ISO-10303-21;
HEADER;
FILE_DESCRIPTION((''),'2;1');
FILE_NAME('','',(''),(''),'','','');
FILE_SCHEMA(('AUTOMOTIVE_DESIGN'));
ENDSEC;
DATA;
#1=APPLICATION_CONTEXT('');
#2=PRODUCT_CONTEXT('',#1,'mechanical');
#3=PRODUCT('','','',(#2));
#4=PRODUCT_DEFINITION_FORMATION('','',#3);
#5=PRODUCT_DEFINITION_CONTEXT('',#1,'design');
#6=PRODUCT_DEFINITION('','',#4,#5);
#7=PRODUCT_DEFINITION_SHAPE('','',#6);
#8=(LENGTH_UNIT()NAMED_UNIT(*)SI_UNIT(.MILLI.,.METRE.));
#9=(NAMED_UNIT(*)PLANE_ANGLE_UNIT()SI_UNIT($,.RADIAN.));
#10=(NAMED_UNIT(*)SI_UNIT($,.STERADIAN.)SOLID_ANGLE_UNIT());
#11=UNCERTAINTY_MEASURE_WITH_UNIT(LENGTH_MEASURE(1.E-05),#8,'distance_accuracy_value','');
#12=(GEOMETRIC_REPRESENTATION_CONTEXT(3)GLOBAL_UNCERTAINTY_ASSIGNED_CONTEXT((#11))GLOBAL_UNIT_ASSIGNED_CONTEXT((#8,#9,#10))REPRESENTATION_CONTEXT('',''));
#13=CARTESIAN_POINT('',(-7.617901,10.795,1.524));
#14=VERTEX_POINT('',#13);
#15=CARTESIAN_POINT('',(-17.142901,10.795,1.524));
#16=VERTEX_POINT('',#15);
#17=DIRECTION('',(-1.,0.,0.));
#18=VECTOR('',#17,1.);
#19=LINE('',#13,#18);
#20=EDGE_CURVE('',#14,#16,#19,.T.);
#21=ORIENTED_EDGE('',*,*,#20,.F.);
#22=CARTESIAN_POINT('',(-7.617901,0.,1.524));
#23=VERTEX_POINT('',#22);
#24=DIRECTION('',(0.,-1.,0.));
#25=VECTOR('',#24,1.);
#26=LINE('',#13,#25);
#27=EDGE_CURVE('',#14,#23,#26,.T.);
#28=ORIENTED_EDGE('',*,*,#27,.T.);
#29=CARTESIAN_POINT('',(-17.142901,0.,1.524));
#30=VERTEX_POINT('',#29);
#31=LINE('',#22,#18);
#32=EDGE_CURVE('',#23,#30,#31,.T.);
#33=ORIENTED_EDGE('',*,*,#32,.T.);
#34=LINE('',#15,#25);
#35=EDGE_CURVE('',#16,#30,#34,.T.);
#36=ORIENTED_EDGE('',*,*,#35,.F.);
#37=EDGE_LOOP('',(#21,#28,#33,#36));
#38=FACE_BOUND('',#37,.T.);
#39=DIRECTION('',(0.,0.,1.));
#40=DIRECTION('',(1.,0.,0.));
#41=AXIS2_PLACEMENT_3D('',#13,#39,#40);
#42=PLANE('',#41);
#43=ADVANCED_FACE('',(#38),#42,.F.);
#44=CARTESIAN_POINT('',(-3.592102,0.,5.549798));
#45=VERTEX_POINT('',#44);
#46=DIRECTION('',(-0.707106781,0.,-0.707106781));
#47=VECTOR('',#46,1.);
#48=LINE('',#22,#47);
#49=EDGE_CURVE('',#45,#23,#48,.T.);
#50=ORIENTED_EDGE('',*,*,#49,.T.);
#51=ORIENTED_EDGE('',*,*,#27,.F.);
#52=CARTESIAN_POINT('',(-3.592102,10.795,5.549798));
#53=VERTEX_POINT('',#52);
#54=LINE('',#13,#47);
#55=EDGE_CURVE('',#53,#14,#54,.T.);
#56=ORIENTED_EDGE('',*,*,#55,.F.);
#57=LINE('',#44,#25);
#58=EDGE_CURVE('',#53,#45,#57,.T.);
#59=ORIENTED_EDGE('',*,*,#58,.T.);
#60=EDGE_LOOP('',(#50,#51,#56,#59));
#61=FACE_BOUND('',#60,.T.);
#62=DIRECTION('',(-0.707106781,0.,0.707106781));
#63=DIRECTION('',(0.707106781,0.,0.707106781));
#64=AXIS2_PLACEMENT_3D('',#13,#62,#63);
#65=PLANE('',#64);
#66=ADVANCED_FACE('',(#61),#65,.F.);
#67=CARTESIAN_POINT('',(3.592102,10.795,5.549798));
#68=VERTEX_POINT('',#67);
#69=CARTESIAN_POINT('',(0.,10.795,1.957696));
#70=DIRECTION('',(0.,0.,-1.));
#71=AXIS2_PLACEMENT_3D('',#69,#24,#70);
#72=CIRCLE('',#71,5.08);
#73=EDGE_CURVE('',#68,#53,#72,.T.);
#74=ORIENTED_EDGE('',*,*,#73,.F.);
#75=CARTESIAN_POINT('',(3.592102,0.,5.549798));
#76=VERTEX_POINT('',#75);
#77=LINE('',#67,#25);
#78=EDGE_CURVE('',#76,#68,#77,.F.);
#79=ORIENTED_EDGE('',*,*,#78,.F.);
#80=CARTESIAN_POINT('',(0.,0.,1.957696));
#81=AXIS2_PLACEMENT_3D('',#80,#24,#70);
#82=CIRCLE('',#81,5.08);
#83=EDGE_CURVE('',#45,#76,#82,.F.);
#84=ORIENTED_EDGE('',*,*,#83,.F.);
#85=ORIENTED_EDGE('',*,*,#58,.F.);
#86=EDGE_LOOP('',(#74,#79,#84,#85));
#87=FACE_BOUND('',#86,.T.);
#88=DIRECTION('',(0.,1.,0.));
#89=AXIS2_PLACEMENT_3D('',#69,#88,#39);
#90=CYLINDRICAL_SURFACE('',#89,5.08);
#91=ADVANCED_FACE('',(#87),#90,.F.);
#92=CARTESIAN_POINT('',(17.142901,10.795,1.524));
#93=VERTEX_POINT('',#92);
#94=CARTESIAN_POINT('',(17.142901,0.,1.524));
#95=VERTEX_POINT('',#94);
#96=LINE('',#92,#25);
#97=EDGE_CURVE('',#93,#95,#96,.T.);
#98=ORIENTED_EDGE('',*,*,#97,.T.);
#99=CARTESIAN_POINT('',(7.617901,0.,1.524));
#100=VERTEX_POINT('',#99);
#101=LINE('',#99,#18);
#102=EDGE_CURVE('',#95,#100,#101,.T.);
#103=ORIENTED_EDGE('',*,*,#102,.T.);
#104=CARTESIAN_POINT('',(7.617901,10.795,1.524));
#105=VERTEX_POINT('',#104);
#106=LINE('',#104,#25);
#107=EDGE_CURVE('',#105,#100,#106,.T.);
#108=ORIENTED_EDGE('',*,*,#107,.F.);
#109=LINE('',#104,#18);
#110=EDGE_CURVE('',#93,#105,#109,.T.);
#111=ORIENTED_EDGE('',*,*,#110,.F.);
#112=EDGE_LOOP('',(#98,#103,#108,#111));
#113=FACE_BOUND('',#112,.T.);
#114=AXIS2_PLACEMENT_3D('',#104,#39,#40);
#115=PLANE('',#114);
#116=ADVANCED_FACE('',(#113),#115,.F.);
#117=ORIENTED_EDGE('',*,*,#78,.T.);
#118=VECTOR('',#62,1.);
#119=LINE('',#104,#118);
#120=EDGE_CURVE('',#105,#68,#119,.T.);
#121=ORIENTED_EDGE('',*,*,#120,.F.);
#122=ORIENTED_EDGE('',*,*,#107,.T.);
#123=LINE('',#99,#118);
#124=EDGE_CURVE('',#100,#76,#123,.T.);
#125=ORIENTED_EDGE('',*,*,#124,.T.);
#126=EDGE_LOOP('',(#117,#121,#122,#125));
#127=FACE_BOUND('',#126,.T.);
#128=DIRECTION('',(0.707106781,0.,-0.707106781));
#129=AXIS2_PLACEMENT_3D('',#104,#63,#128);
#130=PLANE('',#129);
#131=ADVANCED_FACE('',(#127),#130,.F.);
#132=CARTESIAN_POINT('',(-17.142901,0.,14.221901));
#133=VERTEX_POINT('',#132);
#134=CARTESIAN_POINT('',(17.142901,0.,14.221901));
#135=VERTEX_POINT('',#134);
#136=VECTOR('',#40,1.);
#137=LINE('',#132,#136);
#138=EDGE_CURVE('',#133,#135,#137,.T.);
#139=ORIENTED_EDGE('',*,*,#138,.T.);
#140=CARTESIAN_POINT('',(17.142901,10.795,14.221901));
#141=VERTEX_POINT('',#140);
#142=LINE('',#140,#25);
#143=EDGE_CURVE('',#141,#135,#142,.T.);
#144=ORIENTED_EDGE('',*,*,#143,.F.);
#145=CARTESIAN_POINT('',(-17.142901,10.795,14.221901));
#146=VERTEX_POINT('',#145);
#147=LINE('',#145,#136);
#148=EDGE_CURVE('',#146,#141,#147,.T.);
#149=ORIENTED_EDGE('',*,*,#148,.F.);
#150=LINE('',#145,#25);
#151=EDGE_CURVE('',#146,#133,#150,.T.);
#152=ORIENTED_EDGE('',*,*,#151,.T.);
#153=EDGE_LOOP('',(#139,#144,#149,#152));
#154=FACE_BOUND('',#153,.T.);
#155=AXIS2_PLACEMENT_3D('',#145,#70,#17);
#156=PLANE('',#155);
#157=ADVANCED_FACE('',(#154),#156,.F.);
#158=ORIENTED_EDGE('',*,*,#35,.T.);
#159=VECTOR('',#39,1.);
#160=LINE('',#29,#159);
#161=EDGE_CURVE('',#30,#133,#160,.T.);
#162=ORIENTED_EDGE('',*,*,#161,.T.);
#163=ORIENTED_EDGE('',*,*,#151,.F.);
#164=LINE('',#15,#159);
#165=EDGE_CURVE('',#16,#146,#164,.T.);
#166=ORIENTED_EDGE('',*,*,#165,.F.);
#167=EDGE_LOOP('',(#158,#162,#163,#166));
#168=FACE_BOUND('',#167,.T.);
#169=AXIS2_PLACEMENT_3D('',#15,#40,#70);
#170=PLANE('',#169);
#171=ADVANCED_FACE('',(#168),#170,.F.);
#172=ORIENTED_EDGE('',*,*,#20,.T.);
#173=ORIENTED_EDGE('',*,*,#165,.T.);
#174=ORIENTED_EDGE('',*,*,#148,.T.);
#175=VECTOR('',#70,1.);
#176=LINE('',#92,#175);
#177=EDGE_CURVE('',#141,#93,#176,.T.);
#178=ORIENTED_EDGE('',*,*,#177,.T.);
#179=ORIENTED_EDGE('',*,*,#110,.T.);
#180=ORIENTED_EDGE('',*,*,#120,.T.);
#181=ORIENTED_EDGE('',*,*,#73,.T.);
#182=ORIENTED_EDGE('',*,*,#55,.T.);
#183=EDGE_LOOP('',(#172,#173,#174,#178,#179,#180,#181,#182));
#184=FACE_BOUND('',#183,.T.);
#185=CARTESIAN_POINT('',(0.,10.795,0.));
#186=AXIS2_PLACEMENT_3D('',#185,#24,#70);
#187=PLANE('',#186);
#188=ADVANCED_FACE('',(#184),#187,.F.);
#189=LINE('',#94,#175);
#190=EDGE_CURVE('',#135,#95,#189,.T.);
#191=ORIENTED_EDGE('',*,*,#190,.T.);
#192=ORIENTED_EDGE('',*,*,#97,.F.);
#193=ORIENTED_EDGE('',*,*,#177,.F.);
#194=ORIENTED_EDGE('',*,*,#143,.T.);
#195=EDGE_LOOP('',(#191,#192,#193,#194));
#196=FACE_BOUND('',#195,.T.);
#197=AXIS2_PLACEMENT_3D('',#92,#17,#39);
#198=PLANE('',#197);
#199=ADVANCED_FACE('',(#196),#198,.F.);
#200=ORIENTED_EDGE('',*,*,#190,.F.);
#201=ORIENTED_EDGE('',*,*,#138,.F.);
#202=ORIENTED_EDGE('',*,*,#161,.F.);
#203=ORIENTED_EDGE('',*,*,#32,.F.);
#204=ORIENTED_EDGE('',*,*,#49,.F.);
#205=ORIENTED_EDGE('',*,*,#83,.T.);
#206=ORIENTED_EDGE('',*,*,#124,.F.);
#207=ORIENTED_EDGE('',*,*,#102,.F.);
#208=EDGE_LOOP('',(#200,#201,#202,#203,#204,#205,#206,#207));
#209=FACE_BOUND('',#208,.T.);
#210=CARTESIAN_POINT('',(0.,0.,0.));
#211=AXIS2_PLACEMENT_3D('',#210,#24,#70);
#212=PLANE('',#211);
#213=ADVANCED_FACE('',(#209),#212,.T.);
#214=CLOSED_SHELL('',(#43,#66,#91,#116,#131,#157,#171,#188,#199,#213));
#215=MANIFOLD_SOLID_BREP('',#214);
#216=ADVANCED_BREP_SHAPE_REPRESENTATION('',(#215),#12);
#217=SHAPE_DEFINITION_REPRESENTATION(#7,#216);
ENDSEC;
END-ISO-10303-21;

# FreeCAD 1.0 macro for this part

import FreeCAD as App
import Part
import Sketcher

V = App.Vector
Q = App.Units.Quantity


def edges_at(feature, points):
    """Names of the edges that pass closest to the given points."""
    edges = feature.Shape.Edges
    near = lambda p: min(range(len(edges)), key=lambda i: edges[i].distToShape(Part.Vertex(*p))[0])
    return sorted({f"Edge{near(p) + 1}" for p in points})

doc = App.newDocument("Part")
body = doc.addObject("PartDesign::Body", "Body")

# Sketch on XZ plane
sketch1 = body.newObject("Sketcher::SketchObject", "Sketch")
sketch1.AttachmentSupport = (doc.getObject("XZ_Plane"), [""])
sketch1.MapMode = "FlatFace"
sketch1.addGeometry(Part.LineSegment(V(7.617901, 1.524, 0), V(0, 9.141901, 0)), False)
sketch1.addGeometry(Part.LineSegment(V(0, 9.141901, 0), V(-7.617901, 1.524, 0)), False)
sketch1.addGeometry(Part.LineSegment(V(-7.617901, 1.524, 0), V(-17.142901, 1.524, 0)), False)
sketch1.addGeometry(Part.LineSegment(V(-17.142901, 1.524, 0), V(-17.142901, 14.221901, 0)), False)
sketch1.addGeometry(Part.LineSegment(V(-17.142901, 14.221901, 0), V(17.142901, 14.221901, 0)), False)
sketch1.addGeometry(Part.LineSegment(V(17.142901, 14.221901, 0), V(17.142901, 1.524, 0)), False)
sketch1.addGeometry(Part.LineSegment(V(17.142901, 1.524, 0), V(7.617901, 1.524, 0)), False)
sketch1.addConstraint(Sketcher.Constraint("Coincident", 0, 2, 1, 1))
sketch1.addConstraint(Sketcher.Constraint("Coincident", 1, 2, 2, 1))
sketch1.addConstraint(Sketcher.Constraint("Coincident", 2, 2, 3, 1))
sketch1.addConstraint(Sketcher.Constraint("Coincident", 3, 2, 4, 1))
sketch1.addConstraint(Sketcher.Constraint("Coincident", 4, 2, 5, 1))
sketch1.addConstraint(Sketcher.Constraint("Coincident", 5, 2, 6, 1))
sketch1.addConstraint(Sketcher.Constraint("Coincident", 6, 2, 0, 1))
sketch1.addConstraint(Sketcher.Constraint("Horizontal", 2))
sketch1.addConstraint(Sketcher.Constraint("Vertical", 3))
sketch1.addConstraint(Sketcher.Constraint("Horizontal", 4))
sketch1.addConstraint(Sketcher.Constraint("Vertical", 5))
sketch1.addConstraint(Sketcher.Constraint("Horizontal", 6))
sketch1.addConstraint(Sketcher.Constraint("Symmetric", 2, 2, 5, 2, -2))
sketch1.addConstraint(Sketcher.Constraint("PointOnObject", 0, 2, -2))
sketch1.addConstraint(Sketcher.Constraint("Perpendicular", 0, 1))
sketch1.addConstraint(Sketcher.Constraint("Equal", 2, 6))
sketch1.addConstraint(Sketcher.Constraint("DistanceY", 0, 2, 3, 2, Q("0.2 in")))
sketch1.addConstraint(Sketcher.Constraint("DistanceX", 2, 2, 2, 1, Q("0.375 in")))
sketch1.addConstraint(Sketcher.Constraint("DistanceY", -1, 1, 1, 2, Q("0.06 in")))
sketch1.addConstraint(Sketcher.Constraint("DistanceX", 4, 1, 4, 2, 34.285801))
pad1 = body.newObject("PartDesign::Pad", "Pad")
pad1.Profile = sketch1
pad1.Length = Q("0.425 in")
pad1.Reversed = True
doc.recompute()

fillet = body.newObject("PartDesign::Fillet", "Fillet")
fillet.Base = (pad1, edges_at(pad1, [(0, 5.397, 9.142)]))
fillet.Radius = Q("0.2 in")

doc.recompute()
